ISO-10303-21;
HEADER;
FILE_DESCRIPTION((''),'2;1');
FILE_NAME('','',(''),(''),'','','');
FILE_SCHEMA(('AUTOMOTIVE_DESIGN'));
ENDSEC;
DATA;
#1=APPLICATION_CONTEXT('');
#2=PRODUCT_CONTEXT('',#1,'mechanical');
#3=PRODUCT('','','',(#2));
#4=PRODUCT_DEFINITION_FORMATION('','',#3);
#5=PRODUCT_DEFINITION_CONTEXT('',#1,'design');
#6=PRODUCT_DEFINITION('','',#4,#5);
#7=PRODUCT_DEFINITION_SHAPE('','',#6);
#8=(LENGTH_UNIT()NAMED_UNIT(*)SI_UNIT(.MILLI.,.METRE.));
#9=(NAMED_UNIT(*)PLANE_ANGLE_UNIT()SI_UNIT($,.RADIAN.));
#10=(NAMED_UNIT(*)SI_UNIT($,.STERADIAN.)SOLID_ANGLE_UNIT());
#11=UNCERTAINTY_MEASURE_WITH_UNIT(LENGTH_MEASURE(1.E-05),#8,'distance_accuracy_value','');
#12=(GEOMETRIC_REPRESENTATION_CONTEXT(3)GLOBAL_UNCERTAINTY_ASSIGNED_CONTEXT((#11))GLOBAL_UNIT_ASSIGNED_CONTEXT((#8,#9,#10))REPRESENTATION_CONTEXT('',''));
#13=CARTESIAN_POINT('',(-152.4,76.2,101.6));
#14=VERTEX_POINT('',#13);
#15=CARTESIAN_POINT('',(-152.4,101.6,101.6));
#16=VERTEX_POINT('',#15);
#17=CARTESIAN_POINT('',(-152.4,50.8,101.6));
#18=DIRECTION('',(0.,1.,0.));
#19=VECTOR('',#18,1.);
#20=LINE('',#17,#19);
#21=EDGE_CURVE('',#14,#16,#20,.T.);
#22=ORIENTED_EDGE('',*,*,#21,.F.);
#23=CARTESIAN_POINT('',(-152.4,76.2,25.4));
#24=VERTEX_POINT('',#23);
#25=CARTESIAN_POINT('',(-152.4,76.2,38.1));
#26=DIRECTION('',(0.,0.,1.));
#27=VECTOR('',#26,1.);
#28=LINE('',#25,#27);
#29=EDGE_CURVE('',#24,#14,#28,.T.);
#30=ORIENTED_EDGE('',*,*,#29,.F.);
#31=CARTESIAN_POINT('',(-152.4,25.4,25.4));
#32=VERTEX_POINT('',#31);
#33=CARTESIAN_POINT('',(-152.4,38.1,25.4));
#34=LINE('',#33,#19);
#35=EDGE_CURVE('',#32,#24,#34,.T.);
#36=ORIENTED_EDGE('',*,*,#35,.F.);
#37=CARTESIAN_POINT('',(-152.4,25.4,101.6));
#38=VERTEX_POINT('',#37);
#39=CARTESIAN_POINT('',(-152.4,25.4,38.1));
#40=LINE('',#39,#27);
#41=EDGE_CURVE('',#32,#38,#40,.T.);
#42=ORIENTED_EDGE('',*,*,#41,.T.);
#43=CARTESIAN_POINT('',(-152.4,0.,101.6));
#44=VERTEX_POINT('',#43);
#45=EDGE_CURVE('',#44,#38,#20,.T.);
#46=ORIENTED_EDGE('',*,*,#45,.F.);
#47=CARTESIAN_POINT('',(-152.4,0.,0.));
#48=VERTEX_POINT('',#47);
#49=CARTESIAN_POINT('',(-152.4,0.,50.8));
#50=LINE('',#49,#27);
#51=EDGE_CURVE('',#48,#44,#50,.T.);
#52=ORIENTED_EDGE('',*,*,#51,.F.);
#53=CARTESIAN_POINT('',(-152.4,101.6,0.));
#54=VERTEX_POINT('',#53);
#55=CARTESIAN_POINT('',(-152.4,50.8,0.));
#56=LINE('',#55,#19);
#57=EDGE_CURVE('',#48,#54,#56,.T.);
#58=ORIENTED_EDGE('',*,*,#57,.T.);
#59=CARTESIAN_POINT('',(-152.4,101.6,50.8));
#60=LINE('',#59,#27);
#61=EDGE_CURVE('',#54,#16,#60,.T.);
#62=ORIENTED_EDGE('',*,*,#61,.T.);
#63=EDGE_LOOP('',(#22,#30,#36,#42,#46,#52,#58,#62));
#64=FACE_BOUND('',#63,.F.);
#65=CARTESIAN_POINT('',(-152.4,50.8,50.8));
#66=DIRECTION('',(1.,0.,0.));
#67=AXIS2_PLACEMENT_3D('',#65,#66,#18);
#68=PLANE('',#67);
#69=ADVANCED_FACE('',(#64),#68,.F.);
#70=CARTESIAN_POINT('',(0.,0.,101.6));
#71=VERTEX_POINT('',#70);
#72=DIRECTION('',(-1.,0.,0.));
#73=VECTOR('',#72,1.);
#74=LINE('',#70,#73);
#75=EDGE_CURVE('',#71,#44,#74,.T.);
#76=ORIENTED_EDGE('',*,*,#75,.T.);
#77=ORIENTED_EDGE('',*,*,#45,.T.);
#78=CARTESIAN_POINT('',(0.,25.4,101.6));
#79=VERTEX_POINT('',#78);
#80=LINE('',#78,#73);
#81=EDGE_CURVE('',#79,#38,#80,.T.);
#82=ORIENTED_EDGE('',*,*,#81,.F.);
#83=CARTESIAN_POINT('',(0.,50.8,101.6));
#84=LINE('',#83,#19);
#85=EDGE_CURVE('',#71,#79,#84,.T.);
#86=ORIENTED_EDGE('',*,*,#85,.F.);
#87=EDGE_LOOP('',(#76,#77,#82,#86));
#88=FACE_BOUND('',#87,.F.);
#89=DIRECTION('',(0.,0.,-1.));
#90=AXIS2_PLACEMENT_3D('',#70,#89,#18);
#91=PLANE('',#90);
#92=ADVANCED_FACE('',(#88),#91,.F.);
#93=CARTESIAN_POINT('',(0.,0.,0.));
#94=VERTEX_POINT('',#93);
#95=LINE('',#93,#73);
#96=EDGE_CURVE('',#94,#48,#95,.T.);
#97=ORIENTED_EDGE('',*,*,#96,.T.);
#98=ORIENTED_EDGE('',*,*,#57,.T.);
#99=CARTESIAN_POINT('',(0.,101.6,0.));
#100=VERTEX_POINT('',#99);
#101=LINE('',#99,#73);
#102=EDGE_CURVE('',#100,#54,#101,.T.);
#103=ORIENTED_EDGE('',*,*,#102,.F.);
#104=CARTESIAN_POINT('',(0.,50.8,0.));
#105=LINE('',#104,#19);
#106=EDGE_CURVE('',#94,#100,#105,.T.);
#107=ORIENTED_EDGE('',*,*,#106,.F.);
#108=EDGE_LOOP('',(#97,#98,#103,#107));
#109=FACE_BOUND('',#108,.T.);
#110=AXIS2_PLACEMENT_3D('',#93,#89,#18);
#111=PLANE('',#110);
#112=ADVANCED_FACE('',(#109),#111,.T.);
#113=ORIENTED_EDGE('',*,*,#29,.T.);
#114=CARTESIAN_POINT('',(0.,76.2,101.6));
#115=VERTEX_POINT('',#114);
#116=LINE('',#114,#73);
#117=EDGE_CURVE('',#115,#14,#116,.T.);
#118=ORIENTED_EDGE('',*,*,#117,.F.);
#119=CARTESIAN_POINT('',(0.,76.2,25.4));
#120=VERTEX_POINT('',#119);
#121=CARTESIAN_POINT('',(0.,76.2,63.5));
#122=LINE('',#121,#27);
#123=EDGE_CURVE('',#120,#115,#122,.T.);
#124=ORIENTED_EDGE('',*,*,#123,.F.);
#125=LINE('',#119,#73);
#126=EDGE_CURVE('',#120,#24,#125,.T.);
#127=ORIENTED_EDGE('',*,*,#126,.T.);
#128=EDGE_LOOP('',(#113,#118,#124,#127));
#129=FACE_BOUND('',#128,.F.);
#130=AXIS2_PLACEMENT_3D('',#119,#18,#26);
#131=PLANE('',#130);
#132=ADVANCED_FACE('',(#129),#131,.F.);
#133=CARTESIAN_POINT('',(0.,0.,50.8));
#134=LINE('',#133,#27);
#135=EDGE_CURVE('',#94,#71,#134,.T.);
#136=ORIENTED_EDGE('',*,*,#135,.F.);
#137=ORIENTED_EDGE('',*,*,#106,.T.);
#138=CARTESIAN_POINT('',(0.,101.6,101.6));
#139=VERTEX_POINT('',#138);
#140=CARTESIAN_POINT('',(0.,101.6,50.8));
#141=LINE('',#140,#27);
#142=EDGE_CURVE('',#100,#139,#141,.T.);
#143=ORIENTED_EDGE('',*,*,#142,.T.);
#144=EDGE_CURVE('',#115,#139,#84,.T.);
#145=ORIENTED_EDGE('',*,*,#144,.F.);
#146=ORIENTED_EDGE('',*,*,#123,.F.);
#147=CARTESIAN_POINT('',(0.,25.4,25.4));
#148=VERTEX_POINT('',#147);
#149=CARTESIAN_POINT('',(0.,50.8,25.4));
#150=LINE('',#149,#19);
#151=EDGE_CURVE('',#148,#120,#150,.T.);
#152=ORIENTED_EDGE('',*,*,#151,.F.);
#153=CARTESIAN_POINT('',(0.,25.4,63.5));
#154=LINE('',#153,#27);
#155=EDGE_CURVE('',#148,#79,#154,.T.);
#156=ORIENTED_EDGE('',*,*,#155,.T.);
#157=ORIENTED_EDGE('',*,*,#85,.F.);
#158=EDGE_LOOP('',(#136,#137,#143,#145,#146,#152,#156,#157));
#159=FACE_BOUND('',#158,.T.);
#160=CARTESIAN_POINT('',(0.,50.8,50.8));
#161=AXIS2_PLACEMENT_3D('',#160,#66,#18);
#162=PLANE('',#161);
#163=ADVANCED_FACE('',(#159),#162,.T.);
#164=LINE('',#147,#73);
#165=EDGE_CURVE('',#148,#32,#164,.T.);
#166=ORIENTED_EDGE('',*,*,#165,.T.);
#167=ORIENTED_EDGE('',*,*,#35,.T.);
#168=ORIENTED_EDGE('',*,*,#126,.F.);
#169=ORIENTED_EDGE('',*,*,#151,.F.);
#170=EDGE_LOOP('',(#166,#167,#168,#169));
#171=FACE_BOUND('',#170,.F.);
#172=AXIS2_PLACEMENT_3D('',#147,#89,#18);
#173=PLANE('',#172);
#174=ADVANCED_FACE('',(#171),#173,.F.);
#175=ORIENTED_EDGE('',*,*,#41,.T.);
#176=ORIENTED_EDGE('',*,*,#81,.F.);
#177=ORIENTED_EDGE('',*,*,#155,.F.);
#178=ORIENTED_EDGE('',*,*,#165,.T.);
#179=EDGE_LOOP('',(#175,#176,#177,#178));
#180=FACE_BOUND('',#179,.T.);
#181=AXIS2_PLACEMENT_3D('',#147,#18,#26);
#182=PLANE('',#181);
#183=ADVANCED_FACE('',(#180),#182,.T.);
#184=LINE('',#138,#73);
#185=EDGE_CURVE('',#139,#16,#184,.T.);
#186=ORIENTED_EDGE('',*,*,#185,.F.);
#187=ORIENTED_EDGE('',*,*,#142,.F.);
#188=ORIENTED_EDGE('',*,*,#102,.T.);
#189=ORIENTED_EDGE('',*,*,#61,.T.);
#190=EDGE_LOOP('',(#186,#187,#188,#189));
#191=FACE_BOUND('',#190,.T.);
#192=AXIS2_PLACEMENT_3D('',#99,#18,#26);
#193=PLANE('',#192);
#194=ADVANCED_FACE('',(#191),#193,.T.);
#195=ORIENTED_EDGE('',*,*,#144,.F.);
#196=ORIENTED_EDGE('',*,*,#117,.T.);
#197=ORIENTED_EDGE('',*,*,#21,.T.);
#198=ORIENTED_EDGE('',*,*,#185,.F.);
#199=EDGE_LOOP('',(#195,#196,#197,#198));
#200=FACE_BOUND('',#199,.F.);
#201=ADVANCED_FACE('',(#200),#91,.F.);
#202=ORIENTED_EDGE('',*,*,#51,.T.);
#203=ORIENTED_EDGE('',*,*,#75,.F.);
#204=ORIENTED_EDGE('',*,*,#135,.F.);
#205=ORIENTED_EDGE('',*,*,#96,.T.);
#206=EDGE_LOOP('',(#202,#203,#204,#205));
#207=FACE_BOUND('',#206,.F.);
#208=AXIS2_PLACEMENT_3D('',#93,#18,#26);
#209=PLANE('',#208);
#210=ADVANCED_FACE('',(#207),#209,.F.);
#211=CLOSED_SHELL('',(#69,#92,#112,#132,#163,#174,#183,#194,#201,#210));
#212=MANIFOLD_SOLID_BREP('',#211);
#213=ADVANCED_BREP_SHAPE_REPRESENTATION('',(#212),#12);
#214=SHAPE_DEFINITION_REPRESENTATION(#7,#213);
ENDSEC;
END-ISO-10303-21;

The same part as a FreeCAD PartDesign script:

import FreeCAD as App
import Part
import Sketcher
from FreeCAD import Vector
Q = App.Units.Quantity

doc = App.newDocument("Part")
body = doc.addObject("PartDesign::Body", "Body")

# Sketch on YZ plane
sketch1 = body.newObject("Sketcher::SketchObject", "Sketch")
sketch1.AttachmentSupport = (doc.getObject("YZ_Plane"), [""])
sketch1.MapMode = "FlatFace"
sketch1.addGeometry([
    Part.LineSegment(Vector(0, 102, 0), Vector(0, 0, 0)),
    Part.LineSegment(Vector(0, 0, 0), Vector(102, 0, 0)),
    Part.LineSegment(Vector(102, 0, 0), Vector(102, 102, 0)),
    Part.LineSegment(Vector(102, 102, 0), Vector(0, 102, 0)),
], False)
sketch1.addConstraint([
    Sketcher.Constraint("Coincident", 0, 2, 1, 1),
    Sketcher.Constraint("Coincident", 1, 2, 2, 1),
    Sketcher.Constraint("Coincident", 2, 2, 3, 1),
    Sketcher.Constraint("Coincident", 3, 2, 0, 1),
    Sketcher.Constraint("Vertical", 0),
    Sketcher.Constraint("Horizontal", 1),
    Sketcher.Constraint("Vertical", 2),
    Sketcher.Constraint("Horizontal", 3),
    Sketcher.Constraint("Coincident", 0, 2, -1, 1),
    Sketcher.Constraint("Equal", 3, 0),
    Sketcher.Constraint("DistanceX", 1, 1, 1, 2, Q("4 in")),
])
pad1 = body.newObject("PartDesign::Pad", "Pad")
pad1.Profile = sketch1
pad1.Length = Q("6 in")
pad1.Reversed = True

# Sketch on YZ plane
sketch2 = body.newObject("Sketcher::SketchObject", "Sketch001")
sketch2.AttachmentSupport = (doc.getObject("YZ_Plane"), [""])
sketch2.MapMode = "FlatFace"
sketch2.addGeometry([
    Part.LineSegment(Vector(25, 102, 0), Vector(25, 25, 0)),
    Part.LineSegment(Vector(25, 25, 0), Vector(76, 25, 0)),
    Part.LineSegment(Vector(76, 25, 0), Vector(76, 102, 0)),
    Part.LineSegment(Vector(76, 102, 0), Vector(25, 102, 0)),
], False)
sketch2.addConstraint([
    Sketcher.Constraint("Coincident", 0, 2, 1, 1),
    Sketcher.Constraint("Coincident", 1, 2, 2, 1),
    Sketcher.Constraint("Coincident", 2, 2, 3, 1),
    Sketcher.Constraint("Coincident", 3, 2, 0, 1),
    Sketcher.Constraint("Vertical", 0),
    Sketcher.Constraint("Horizontal", 1),
    Sketcher.Constraint("Vertical", 2),
    Sketcher.Constraint("Horizontal", 3),
    Sketcher.Constraint("DistanceX", 1, 1, 1, 2, Q("2 in")),
    Sketcher.Constraint("DistanceY", 0, 2, 0, 1, Q("3 in")),
    Sketcher.Constraint("DistanceX", -1, 1, 0, 2, Q("1 in")),
    Sketcher.Constraint("DistanceY", -1, 1, 0, 2, Q("1 in")),
])
pocket1 = body.newObject("PartDesign::Pocket", "Pocket")
pocket1.Profile = sketch2
pocket1.Type = "ThroughAll"

doc.recompute()
